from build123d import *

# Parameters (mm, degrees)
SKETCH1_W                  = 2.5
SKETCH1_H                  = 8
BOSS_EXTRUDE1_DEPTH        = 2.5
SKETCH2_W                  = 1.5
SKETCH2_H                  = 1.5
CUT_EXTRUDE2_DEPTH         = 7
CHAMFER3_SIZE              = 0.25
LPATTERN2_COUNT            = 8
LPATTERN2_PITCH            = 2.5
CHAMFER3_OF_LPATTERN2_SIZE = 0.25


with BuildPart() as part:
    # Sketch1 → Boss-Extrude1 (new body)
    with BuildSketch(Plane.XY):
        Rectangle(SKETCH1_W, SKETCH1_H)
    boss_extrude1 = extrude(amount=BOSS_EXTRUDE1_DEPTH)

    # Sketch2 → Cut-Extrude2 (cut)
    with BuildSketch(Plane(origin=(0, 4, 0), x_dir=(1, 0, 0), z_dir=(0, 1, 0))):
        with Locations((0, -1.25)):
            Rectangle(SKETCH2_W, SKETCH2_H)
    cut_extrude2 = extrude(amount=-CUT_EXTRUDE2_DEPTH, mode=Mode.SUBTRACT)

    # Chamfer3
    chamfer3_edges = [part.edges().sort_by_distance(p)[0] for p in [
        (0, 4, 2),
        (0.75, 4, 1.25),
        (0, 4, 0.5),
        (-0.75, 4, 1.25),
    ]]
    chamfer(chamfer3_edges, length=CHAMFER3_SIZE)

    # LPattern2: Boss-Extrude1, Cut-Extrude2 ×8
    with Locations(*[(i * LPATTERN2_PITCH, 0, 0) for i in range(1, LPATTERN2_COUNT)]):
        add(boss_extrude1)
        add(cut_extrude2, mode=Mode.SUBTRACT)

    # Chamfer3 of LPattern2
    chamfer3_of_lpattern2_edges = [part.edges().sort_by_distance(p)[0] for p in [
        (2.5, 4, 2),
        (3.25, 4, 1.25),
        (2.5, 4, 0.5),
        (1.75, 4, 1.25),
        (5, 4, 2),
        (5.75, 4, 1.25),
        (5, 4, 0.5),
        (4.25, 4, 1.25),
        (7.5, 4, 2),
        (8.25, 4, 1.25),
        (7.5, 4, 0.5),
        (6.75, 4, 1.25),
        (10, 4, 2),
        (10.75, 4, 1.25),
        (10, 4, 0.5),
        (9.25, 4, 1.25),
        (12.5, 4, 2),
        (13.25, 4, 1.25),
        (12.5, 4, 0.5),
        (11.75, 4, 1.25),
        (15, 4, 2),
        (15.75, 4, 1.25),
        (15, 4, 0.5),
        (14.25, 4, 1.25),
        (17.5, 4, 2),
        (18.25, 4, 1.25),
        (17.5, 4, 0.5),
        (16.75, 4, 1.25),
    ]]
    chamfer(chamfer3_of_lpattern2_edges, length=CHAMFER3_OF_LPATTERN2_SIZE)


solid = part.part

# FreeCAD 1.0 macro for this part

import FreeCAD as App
import Part
import Sketcher
from FreeCAD import Vector
Q = App.Units.Quantity


def edges_at(feature, points):
    """Names of the edges that pass closest to the given points."""
    edges = feature.Shape.Edges
    near = lambda p: min(range(len(edges)), key=lambda i: edges[i].distToShape(Part.Vertex(*p))[0])
    return sorted({f"Edge{near(p) + 1}" for p in points})

doc = App.newDocument("Part")
body = doc.addObject("PartDesign::Body", "Body")

sketch1 = body.newObject("Sketcher::SketchObject", "Sketch")
sketch1.AttachmentSupport = (doc.getObject("XY_Plane"), [""])
sketch1.MapMode = "FlatFace"
sketch1.addGeometry([
    Part.LineSegment(Vector(-1.25, 4, 0), Vector(-1.25, -4, 0)),
    Part.LineSegment(Vector(-1.25, -4, 0), Vector(1.25, -4, 0)),
    Part.LineSegment(Vector(1.25, -4, 0), Vector(1.25, 4, 0)),
    Part.LineSegment(Vector(1.25, 4, 0), Vector(-1.25, 4, 0)),
], False)
sketch1.addConstraint([
    Sketcher.Constraint("Coincident", 0, 2, 1, 1),
    Sketcher.Constraint("Coincident", 1, 2, 2, 1),
    Sketcher.Constraint("Coincident", 2, 2, 3, 1),
    Sketcher.Constraint("Coincident", 3, 2, 0, 1),
    Sketcher.Constraint("Vertical", 0),
    Sketcher.Constraint("Horizontal", 1),
    Sketcher.Constraint("Vertical", 2),
    Sketcher.Constraint("Horizontal", 3),
    Sketcher.Constraint("Symmetric", 0, 2, 2, 2, -1, 1),
    Sketcher.Constraint("DistanceY", 0, 2, 0, 1, Q("8 mm")),
    Sketcher.Constraint("DistanceX", 1, 1, 1, 2, Q("2.5 mm")),
])
pad1 = body.newObject("PartDesign::Pad", "Pad")
pad1.Profile = sketch1
pad1.Length = 2.5

sketch2 = body.newObject("Sketcher::SketchObject", "Sketch001")
sketch2.AttachmentSupport = (doc.getObject("XZ_Plane"), [""])
sketch2.MapMode = "FlatFace"
sketch2.AttachmentOffset = App.Placement(Vector(0, 0, -4), App.Rotation())
sketch2.addGeometry([
    Part.LineSegment(Vector(-0.75, 0.5, 0), Vector(-0.75, 2, 0)),
    Part.LineSegment(Vector(-0.75, 2, 0), Vector(0.75, 2, 0)),
    Part.LineSegment(Vector(0.75, 2, 0), Vector(0.75, 0.5, 0)),
    Part.LineSegment(Vector(0.75, 0.5, 0), Vector(-0.75, 0.5, 0)),
], False)
sketch2.addConstraint([
    Sketcher.Constraint("Coincident", 0, 2, 1, 1),
    Sketcher.Constraint("Coincident", 1, 2, 2, 1),
    Sketcher.Constraint("Coincident", 2, 2, 3, 1),
    Sketcher.Constraint("Coincident", 3, 2, 0, 1),
    Sketcher.Constraint("Vertical", 0),
    Sketcher.Constraint("Horizontal", 1),
    Sketcher.Constraint("Vertical", 2),
    Sketcher.Constraint("Horizontal", 3),
    Sketcher.Constraint("Equal", 3, 0),
    Sketcher.Constraint("DistanceX", 1, 1, 1, 2, Q("1.5 mm")),
    Sketcher.Constraint("DistanceY", -1, 1, 0, 2, Q("2 mm")),
    Sketcher.Constraint("DistanceX", 0, 2, -1, 1, Q("0.75 mm")),
])
pocket1 = body.newObject("PartDesign::Pocket", "Pocket")
pocket1.Profile = sketch2
pocket1.Length = 7
pocket1.Reversed = True
doc.recompute()

chamfer = body.newObject("PartDesign::Chamfer", "Chamfer")
chamfer.Base = (pocket1, edges_at(pocket1, [
    (0, 4, 2),
    (0.75, 4, 1.25),
    (0, 4, 0.5),
    (-0.75, 4, 1.25),
]))
chamfer.Size = 0.25
doc.recompute()

linearpattern = body.newObject("PartDesign::LinearPattern", "LinearPattern")
linearpattern.Originals = [pad1, pocket1]
linearpattern.Direction = (doc.getObject("X_Axis"), [""])
linearpattern.Mode = "offset"
linearpattern.Offset = 2.5
linearpattern.Occurrences = 8
body.Tip = linearpattern
doc.recompute()

chamfer2 = body.newObject("PartDesign::Chamfer", "Chamfer001")
chamfer2.Base = (linearpattern, edges_at(linearpattern, [
    (2.5, 4, 2),
    (3.25, 4, 1.25),
    (2.5, 4, 0.5),
    (1.75, 4, 1.25),
    (5, 4, 2),
    (5.75, 4, 1.25),
    (5, 4, 0.5),
    (4.25, 4, 1.25),
    (7.5, 4, 2),
    (8.25, 4, 1.25),
    (7.5, 4, 0.5),
    (6.75, 4, 1.25),
    (10, 4, 2),
    (10.75, 4, 1.25),
    (10, 4, 0.5),
    (9.25, 4, 1.25),
    (12.5, 4, 2),
    (13.25, 4, 1.25),
    (12.5, 4, 0.5),
    (11.75, 4, 1.25),
    (15, 4, 2),
    (15.75, 4, 1.25),
    (15, 4, 0.5),
    (14.25, 4, 1.25),
    (17.5, 4, 2),
    (18.25, 4, 1.25),
    (17.5, 4, 0.5),
    (16.75, 4, 1.25),
]))
chamfer2.Size = 0.25

doc.recompute()
